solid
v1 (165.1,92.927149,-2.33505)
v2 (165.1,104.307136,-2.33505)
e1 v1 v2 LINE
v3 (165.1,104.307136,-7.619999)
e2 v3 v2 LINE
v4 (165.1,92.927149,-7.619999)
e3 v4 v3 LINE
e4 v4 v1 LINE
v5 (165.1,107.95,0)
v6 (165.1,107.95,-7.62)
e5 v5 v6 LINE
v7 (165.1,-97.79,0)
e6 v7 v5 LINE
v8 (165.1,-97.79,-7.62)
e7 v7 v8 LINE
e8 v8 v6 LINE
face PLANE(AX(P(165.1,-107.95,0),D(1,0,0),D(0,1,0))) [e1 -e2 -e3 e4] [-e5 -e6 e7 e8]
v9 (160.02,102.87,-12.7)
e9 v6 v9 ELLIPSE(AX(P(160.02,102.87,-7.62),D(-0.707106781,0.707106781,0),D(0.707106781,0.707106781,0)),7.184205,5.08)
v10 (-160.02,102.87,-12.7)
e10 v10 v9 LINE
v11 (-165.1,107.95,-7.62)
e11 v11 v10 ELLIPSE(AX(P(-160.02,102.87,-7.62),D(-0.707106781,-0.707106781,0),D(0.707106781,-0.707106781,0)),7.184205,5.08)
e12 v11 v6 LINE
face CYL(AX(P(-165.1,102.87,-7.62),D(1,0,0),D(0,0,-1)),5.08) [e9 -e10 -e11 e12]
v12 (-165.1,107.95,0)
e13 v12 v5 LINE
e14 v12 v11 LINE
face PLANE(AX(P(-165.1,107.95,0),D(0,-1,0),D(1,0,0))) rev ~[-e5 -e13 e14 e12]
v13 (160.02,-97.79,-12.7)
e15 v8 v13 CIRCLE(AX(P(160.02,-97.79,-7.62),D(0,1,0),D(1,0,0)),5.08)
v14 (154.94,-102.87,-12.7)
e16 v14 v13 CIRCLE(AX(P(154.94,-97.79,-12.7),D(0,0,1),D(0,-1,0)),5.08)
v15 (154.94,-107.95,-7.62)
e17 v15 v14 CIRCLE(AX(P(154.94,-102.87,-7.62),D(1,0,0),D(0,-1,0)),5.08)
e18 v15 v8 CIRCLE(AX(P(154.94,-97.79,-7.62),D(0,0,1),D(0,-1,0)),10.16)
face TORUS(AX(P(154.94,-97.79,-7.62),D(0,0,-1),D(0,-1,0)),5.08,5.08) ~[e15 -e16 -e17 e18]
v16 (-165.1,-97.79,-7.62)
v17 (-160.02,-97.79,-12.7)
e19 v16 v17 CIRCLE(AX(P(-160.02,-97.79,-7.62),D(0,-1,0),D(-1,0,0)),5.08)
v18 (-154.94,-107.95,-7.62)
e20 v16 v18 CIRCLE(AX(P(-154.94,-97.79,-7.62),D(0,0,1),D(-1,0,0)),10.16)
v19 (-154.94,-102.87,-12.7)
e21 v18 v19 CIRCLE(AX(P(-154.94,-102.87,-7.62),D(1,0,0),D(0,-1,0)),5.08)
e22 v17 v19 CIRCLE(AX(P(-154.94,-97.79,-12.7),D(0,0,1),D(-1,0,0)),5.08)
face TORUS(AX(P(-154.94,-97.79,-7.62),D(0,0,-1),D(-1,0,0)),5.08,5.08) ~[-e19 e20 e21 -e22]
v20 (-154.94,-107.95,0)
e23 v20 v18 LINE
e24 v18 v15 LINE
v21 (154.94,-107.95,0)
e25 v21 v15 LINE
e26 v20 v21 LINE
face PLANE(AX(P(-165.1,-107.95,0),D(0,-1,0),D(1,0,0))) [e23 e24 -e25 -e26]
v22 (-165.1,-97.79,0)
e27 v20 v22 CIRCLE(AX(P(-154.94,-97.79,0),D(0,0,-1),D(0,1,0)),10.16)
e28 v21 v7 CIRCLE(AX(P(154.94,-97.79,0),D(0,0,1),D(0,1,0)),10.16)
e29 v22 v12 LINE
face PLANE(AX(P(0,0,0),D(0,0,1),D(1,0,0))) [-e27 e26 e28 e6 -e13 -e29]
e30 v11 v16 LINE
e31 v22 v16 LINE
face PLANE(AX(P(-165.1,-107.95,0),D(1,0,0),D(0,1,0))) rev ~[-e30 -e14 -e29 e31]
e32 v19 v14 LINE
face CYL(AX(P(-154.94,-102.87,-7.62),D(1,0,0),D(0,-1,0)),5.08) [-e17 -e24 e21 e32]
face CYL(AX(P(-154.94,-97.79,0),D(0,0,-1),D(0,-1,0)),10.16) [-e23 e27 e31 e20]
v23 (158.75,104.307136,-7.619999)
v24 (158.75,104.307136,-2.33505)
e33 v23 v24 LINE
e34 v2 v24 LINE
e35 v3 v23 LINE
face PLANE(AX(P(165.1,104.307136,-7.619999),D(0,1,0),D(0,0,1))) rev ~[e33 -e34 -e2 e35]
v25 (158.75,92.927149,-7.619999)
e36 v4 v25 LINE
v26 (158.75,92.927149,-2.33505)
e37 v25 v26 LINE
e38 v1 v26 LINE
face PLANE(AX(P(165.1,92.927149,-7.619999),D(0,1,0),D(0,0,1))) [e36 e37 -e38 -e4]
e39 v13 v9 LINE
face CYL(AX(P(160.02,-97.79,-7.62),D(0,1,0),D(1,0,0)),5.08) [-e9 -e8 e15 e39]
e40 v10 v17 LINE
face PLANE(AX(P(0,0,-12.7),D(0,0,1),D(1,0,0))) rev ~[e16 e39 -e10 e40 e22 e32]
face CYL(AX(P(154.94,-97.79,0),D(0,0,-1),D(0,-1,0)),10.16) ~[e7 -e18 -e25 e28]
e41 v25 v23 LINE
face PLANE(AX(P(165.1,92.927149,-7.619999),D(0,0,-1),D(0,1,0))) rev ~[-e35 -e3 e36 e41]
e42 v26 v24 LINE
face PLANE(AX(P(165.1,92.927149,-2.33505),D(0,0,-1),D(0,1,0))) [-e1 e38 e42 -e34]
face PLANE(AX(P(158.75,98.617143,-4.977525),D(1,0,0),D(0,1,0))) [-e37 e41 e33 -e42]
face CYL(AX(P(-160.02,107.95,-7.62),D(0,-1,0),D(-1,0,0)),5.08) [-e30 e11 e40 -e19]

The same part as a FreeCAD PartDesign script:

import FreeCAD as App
import Part
import Sketcher
from FreeCAD import Vector
Q = App.Units.Quantity


def edges_at(feature, points):
    """Names of the edges that pass closest to the given points."""
    edges = feature.Shape.Edges
    near = lambda p: min(range(len(edges)), key=lambda i: edges[i].distToShape(Part.Vertex(*p))[0])
    return sorted({f"Edge{near(p) + 1}" for p in points})

doc = App.newDocument("Part")
body = doc.addObject("PartDesign::Body", "Body")

# Sketch on XY plane
sketch1 = body.newObject("Sketcher::SketchObject", "Sketch")
sketch1.AttachmentSupport = (doc.getObject("XY_Plane"), [""])
sketch1.MapMode = "FlatFace"
sketch1.addGeometry(Part.LineSegment(Vector(-165.1, 107.95, 0), Vector(-165.1, -107.95, 0)), False)
sketch1.addGeometry(Part.LineSegment(Vector(-165.1, -107.95, 0), Vector(165.1, -107.95, 0)), False)
sketch1.addGeometry(Part.LineSegment(Vector(165.1, -107.95, 0), Vector(165.1, 107.95, 0)), False)
sketch1.addGeometry(Part.LineSegment(Vector(165.1, 107.95, 0), Vector(-165.1, 107.95, 0)), False)
sketch1.addConstraint(Sketcher.Constraint("Coincident", 0, 2, 1, 1))
sketch1.addConstraint(Sketcher.Constraint("Coincident", 1, 2, 2, 1))
sketch1.addConstraint(Sketcher.Constraint("Coincident", 2, 2, 3, 1))
sketch1.addConstraint(Sketcher.Constraint("Coincident", 3, 2, 0, 1))
sketch1.addConstraint(Sketcher.Constraint("Vertical", 0))
sketch1.addConstraint(Sketcher.Constraint("Horizontal", 1))
sketch1.addConstraint(Sketcher.Constraint("Vertical", 2))
sketch1.addConstraint(Sketcher.Constraint("Horizontal", 3))
sketch1.addConstraint(Sketcher.Constraint("Symmetric", 0, 2, 2, 2, -1, 1))
sketch1.addConstraint(Sketcher.Constraint("DistanceX", 1, 1, 1, 2, Q("13 in")))
sketch1.addConstraint(Sketcher.Constraint("DistanceY", 0, 2, 0, 1, Q("8.5 in")))
pad1 = body.newObject("PartDesign::Pad", "Pad")
pad1.Profile = sketch1
pad1.Length = Q("0.5 in")
pad1.Reversed = True
doc.recompute()

fillet = body.newObject("PartDesign::Fillet", "Fillet")
fillet.Base = (pad1, edges_at(pad1, [(165.1, -107.95, -6.35)]))
fillet.Radius = Q("0.4 in")
doc.recompute()

fillet2 = body.newObject("PartDesign::Fillet", "Fillet001")
fillet2.Base = (fillet, edges_at(fillet, [(-165.1, -107.95, -6.35)]))
fillet2.Radius = Q("0.4 in")
doc.recompute()

fillet3 = body.newObject("PartDesign::Fillet", "Fillet002")
fillet3.Base = (fillet2, edges_at(fillet2, [
    (0, -107.95, -12.7),
    (-162.124, -104.974, -12.7),
    (162.124, -104.974, -12.7),
    (-165.1, 5.08, -12.7),
    (165.1, 5.08, -12.7),
    (0, 107.95, -12.7),
]))
fillet3.Radius = Q("0.2 in")

# Sketch on YZ plane
sketch2 = body.newObject("Sketcher::SketchObject", "Sketch001")
sketch2.AttachmentSupport = (doc.getObject("YZ_Plane"), [""])
sketch2.MapMode = "FlatFace"
sketch2.AttachmentOffset = App.Placement(Vector(0, 0, 6.5 * 25.4), App.Rotation())
sketch2.addGeometry(Part.LineSegment(Vector(89.890784, -3.048, 0), Vector(89.890784, -7.62, 0)), False)
sketch2.addGeometry(Part.LineSegment(Vector(89.890784, -7.62, 0), Vector(105.130784, -7.62, 0)), False)
sketch2.addGeometry(Part.LineSegment(Vector(105.130784, -7.62, 0), Vector(105.130784, -3.048, 0)), False)
sketch2.addGeometry(Part.LineSegment(Vector(105.130784, -3.048, 0), Vector(89.890784, -3.048, 0)), False)
sketch2.addConstraint(Sketcher.Constraint("Coincident", 0, 2, 1, 1))
sketch2.addConstraint(Sketcher.Constraint("Coincident", 1, 2, 2, 1))
sketch2.addConstraint(Sketcher.Constraint("Coincident", 2, 2, 3, 1))
sketch2.addConstraint(Sketcher.Constraint("Coincident", 3, 2, 0, 1))
sketch2.addConstraint(Sketcher.Constraint("Vertical", 0))
sketch2.addConstraint(Sketcher.Constraint("Horizontal", 1))
sketch2.addConstraint(Sketcher.Constraint("Vertical", 2))
sketch2.addConstraint(Sketcher.Constraint("Horizontal", 3))
sketch2.addConstraint(Sketcher.Constraint("DistanceX", 1, 1, 1, 2, Q("0.6 in")))
sketch2.addConstraint(Sketcher.Constraint("DistanceY", 0, 2, 0, 1, Q("0.18 in")))
sketch2.addConstraint(Sketcher.Constraint("DistanceY", 0, 2, -1, 1, Q("0.3 in")))
sketch2.addConstraint(Sketcher.Constraint("DistanceX", -1, 1, 0, 2, Q("89.890784 mm")))
pad2 = body.newObject("PartDesign::Pad", "Pad001")
pad2.Profile = sketch2
pad2.Length = Q("0.4 in")
pad2.Reversed = True

# Sketch on YZ plane
sketch3 = body.newObject("Sketcher::SketchObject", "Sketch002")
sketch3.AttachmentSupport = (doc.getObject("YZ_Plane"), [""])
sketch3.MapMode = "FlatFace"
sketch3.AttachmentOffset = App.Placement(Vector(0, 0, 6.5 * 25.4), App.Rotation())
sketch3.addGeometry(Part.LineSegment(Vector(92.927149, -2.33505, 0), Vector(92.927149, -7.619999, 0)), False)
sketch3.addGeometry(Part.LineSegment(Vector(92.927149, -7.619999, 0), Vector(104.307136, -7.619999, 0)), False)
sketch3.addGeometry(Part.LineSegment(Vector(104.307136, -7.619999, 0), Vector(104.307136, -2.33505, 0)), False)
sketch3.addGeometry(Part.LineSegment(Vector(104.307136, -2.33505, 0), Vector(92.927149, -2.33505, 0)), False)
sketch3.addConstraint(Sketcher.Constraint("Coincident", 0, 2, 1, 1))
sketch3.addConstraint(Sketcher.Constraint("Coincident", 1, 2, 2, 1))
sketch3.addConstraint(Sketcher.Constraint("Coincident", 2, 2, 3, 1))
sketch3.addConstraint(Sketcher.Constraint("Coincident", 3, 2, 0, 1))
sketch3.addConstraint(Sketcher.Constraint("Vertical", 0))
sketch3.addConstraint(Sketcher.Constraint("Horizontal", 1))
sketch3.addConstraint(Sketcher.Constraint("Vertical", 2))
sketch3.addConstraint(Sketcher.Constraint("Horizontal", 3))
sketch3.addConstraint(Sketcher.Constraint("DistanceY", 0, 2, -1, 1, Q("0.3 in")))
sketch3.addConstraint(Sketcher.Constraint("DistanceY", 0, 2, 0, 1, Q("5.284949 mm")))
sketch3.addConstraint(Sketcher.Constraint("DistanceX", 1, 1, 1, 2, Q("11.379987 mm")))
sketch3.addConstraint(Sketcher.Constraint("DistanceX", -1, 1, 0, 2, Q("92.927149 mm")))
pocket1 = body.newObject("PartDesign::Pocket", "Pocket")
pocket1.Profile = sketch3
pocket1.Length = Q("0.25 in")

doc.recompute()
